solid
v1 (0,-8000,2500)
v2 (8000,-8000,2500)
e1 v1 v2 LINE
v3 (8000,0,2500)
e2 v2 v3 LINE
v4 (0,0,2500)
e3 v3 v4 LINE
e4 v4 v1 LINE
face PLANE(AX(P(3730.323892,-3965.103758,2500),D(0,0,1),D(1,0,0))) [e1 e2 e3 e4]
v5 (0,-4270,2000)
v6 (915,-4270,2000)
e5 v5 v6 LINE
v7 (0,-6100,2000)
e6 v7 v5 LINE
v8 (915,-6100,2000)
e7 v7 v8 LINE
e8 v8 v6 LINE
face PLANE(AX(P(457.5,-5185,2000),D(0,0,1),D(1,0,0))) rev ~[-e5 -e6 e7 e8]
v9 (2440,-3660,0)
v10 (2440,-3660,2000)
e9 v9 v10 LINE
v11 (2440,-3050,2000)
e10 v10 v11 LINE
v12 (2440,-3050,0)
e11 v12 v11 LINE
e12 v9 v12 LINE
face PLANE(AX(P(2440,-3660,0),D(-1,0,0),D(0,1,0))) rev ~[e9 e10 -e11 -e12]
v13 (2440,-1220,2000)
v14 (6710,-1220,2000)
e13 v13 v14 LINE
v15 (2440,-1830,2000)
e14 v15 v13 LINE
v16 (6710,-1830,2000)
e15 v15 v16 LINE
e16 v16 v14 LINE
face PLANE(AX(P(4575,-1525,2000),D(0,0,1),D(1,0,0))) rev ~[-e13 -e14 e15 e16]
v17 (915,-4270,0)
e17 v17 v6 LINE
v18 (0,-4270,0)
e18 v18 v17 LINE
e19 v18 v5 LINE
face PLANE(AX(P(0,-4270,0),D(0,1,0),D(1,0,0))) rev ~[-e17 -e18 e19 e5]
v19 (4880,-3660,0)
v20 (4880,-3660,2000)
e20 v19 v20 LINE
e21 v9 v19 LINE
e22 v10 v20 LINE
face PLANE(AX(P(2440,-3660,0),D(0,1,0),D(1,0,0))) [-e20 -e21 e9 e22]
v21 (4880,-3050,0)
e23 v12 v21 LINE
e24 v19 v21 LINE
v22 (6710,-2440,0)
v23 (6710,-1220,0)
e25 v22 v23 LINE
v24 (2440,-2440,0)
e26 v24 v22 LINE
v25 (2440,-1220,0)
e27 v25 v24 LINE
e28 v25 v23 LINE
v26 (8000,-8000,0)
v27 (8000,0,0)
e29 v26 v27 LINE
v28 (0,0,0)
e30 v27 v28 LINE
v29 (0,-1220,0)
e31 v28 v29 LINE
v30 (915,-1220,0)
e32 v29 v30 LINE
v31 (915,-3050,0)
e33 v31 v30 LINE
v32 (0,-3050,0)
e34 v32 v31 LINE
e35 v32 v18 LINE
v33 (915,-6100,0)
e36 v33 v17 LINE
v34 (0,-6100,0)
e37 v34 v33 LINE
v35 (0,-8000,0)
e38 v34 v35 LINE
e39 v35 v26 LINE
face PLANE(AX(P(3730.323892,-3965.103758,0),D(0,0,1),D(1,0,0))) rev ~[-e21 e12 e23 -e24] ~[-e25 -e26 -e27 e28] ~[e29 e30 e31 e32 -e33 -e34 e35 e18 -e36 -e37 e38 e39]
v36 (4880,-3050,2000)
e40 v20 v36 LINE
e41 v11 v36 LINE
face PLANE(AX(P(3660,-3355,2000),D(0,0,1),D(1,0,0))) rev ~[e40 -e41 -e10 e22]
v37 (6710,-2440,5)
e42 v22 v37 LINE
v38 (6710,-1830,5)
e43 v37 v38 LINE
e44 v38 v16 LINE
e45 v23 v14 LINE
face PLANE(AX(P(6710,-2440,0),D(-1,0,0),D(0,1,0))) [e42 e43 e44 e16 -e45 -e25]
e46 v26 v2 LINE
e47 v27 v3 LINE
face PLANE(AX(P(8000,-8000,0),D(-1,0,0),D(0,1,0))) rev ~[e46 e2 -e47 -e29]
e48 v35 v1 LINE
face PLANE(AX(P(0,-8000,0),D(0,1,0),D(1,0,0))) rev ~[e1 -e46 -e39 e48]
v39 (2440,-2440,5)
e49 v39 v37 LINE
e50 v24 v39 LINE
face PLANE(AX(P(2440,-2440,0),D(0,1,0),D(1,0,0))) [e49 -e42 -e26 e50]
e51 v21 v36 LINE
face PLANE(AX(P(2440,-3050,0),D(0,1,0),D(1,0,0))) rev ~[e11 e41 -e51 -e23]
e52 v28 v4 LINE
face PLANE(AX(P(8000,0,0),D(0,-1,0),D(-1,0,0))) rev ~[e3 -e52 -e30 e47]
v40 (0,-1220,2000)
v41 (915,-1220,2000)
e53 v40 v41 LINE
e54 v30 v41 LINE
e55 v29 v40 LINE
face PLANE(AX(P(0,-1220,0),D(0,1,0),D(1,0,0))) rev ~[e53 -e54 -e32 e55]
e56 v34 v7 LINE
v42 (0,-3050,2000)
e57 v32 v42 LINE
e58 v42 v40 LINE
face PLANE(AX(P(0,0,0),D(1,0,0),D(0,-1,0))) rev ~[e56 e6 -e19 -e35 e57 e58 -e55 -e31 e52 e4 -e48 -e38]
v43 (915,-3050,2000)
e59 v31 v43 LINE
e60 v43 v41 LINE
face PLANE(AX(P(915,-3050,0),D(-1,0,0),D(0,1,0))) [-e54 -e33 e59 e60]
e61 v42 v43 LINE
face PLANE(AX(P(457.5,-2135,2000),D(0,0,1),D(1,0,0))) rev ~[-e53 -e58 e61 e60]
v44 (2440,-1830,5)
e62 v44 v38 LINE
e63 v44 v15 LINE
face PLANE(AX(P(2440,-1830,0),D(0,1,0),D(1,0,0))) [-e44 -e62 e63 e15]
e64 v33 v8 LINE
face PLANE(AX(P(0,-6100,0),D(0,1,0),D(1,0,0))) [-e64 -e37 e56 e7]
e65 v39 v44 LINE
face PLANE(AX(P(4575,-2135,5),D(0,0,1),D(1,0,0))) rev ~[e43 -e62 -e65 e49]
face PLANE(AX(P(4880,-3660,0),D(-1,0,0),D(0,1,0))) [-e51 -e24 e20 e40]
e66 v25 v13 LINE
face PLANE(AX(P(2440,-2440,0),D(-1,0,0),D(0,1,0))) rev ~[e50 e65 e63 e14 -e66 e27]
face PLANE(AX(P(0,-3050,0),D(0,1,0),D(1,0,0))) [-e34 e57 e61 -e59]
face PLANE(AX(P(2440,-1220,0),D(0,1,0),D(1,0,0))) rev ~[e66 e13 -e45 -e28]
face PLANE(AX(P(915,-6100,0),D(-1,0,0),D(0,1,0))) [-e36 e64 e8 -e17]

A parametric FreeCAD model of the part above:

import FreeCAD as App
import Part
import Sketcher
from FreeCAD import Vector
Q = App.Units.Quantity


def add_polygon(sketch, points):
    """Adds a closed chain of lines whose ends are joined by coincident constraints."""
    first, n = sketch.GeometryCount, len(points)
    for a, b in zip(points, points[1:] + points[:1]):
        sketch.addGeometry(Part.LineSegment(App.Vector(*a, 0), App.Vector(*b, 0)), False)
    for i in range(n):
        sketch.addConstraint(Sketcher.Constraint("Coincident", first + i, 2, first + (i + 1) % n, 1))

doc = App.newDocument("Part")
body = doc.addObject("PartDesign::Body", "Body")

sketch1 = doc.addObject("Sketcher::SketchObject", "Sketch")
body.addObject(sketch1)
sketch1.AttachmentSupport = (doc.XY_Plane, [""])
sketch1.MapMode = "FlatFace"
add_polygon(sketch1, [(8000, 0), (0, 0), (0, -8000), (8000, -8000)])
sketch1.addConstraint(Sketcher.Constraint("Horizontal", 0))
sketch1.addConstraint(Sketcher.Constraint("Vertical", 1))
sketch1.addConstraint(Sketcher.Constraint("Horizontal", 2))
sketch1.addConstraint(Sketcher.Constraint("Vertical", 3))
sketch1.addConstraint(Sketcher.Constraint("Coincident", 0, 2, -1, 1))
sketch1.addConstraint(Sketcher.Constraint("Equal", 2, 1))
sketch1.addConstraint(Sketcher.Constraint("DistanceX", 0, 2, 0, 1, Q("8000 mm")))
pad1 = doc.addObject("PartDesign::Pad", "Pad")
body.addObject(pad1)
pad1.Profile = sketch1
pad1.Length = 2500

sketch2 = doc.addObject("Sketcher::SketchObject", "Sketch001")
body.addObject(sketch2)
sketch2.AttachmentSupport = (doc.XY_Plane, [""])
sketch2.MapMode = "FlatFace"
add_polygon(sketch2, [(0, -4270), (0, -6100), (915, -6100), (915, -4270)])
add_polygon(sketch2, [(0, -1220), (0, -3050), (915, -3050), (915, -1220)])
add_polygon(sketch2, [(2440, -3050), (2440, -3660), (4880, -3660), (4880, -3050)])
add_polygon(sketch2, [(2440, -1220), (2440, -1830), (6710, -1830), (6710, -1220)])
sketch2.addConstraint(Sketcher.Constraint("Vertical", 0))
sketch2.addConstraint(Sketcher.Constraint("Horizontal", 1))
sketch2.addConstraint(Sketcher.Constraint("Vertical", 2))
sketch2.addConstraint(Sketcher.Constraint("Horizontal", 3))
sketch2.addConstraint(Sketcher.Constraint("Vertical", 4))
sketch2.addConstraint(Sketcher.Constraint("Horizontal", 5))
sketch2.addConstraint(Sketcher.Constraint("Vertical", 6))
sketch2.addConstraint(Sketcher.Constraint("Horizontal", 7))
sketch2.addConstraint(Sketcher.Constraint("Vertical", 8))
sketch2.addConstraint(Sketcher.Constraint("Horizontal", 9))
sketch2.addConstraint(Sketcher.Constraint("Vertical", 10))
sketch2.addConstraint(Sketcher.Constraint("Horizontal", 11))
sketch2.addConstraint(Sketcher.Constraint("Vertical", 12))
sketch2.addConstraint(Sketcher.Constraint("Horizontal", 13))
sketch2.addConstraint(Sketcher.Constraint("Vertical", 14))
sketch2.addConstraint(Sketcher.Constraint("Horizontal", 15))
sketch2.addConstraint(Sketcher.Constraint("PointOnObject", 0, 2, -2))
sketch2.addConstraint(Sketcher.Constraint("PointOnObject", 4, 2, -2))
sketch2.addConstraint(Sketcher.Constraint("Horizontal", 5, 2, 10, 2))
sketch2.addConstraint(Sketcher.Constraint("Horizontal", 7, 2, 14, 2))
sketch2.addConstraint(Sketcher.Constraint("Vertical", 2, 2, 5, 2))
sketch2.addConstraint(Sketcher.Constraint("Vertical", 11, 2, 12, 2))
sketch2.addConstraint(Sketcher.Constraint("Equal", 2, 4))
sketch2.addConstraint(Sketcher.Constraint("Equal", 10, 12))
sketch2.addConstraint(Sketcher.Constraint("DistanceX", 1, 1, 1, 2, Q("915 mm")))
sketch2.addConstraint(Sketcher.Constraint("DistanceX", 9, 1, 9, 2, Q("2440 mm")))
sketch2.addConstraint(Sketcher.Constraint("DistanceX", 13, 1, 13, 2, Q("4270 mm")))
sketch2.addConstraint(Sketcher.Constraint("DistanceY", 0, 2, 0, 1, Q("1830 mm")))
sketch2.addConstraint(Sketcher.Constraint("DistanceY", 8, 2, 8, 1, Q("610 mm")))
sketch2.addConstraint(Sketcher.Constraint("DistanceY", 0, 2, -1, 1, Q("6100 mm")))
sketch2.addConstraint(Sketcher.Constraint("DistanceY", 4, 2, -1, 1, Q("3050 mm")))
sketch2.addConstraint(Sketcher.Constraint("DistanceX", -1, 1, 8, 2, Q("2440 mm")))
pocket1 = doc.addObject("PartDesign::Pocket", "Pocket")
body.addObject(pocket1)
pocket1.Profile = sketch2
pocket1.Length = 2000
pocket1.Reversed = True

sketch3 = doc.addObject("Sketcher::SketchObject", "Sketch002")
body.addObject(sketch3)
sketch3.AttachmentSupport = (doc.XY_Plane, [""])
sketch3.MapMode = "FlatFace"
add_polygon(sketch3, [(2440, -1830), (2440, -2440), (6710, -2440), (6710, -1830)])
sketch3.addConstraint(Sketcher.Constraint("Vertical", 0))
sketch3.addConstraint(Sketcher.Constraint("Horizontal", 1))
sketch3.addConstraint(Sketcher.Constraint("Vertical", 2))
sketch3.addConstraint(Sketcher.Constraint("Horizontal", 3))
sketch3.addConstraint(Sketcher.Constraint("DistanceX", 1, 1, 1, 2, Q("4270 mm")))
sketch3.addConstraint(Sketcher.Constraint("DistanceY", 0, 2, 0, 1, Q("610 mm")))
sketch3.addConstraint(Sketcher.Constraint("DistanceX", -1, 1, 0, 2, Q("2440 mm")))
sketch3.addConstraint(Sketcher.Constraint("DistanceY", 0, 2, -1, 1, Q("2440 mm")))
pocket2 = doc.addObject("PartDesign::Pocket", "Pocket001")
body.addObject(pocket2)
pocket2.Profile = sketch3
pocket2.Length = 5
pocket2.Reversed = True

doc.recompute()
